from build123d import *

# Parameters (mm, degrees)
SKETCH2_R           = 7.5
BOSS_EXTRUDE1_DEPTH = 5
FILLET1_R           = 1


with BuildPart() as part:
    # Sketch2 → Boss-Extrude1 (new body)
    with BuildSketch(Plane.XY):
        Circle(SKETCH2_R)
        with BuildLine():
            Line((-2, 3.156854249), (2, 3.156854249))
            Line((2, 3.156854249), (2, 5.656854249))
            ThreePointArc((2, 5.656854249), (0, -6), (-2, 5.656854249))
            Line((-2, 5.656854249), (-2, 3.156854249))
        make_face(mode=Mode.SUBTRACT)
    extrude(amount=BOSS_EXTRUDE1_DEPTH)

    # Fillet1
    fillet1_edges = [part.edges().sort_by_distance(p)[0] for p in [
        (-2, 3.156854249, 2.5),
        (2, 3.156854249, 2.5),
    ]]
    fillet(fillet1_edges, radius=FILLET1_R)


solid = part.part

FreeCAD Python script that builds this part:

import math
import FreeCAD as App
import Part
import Sketcher


def edges_at(feature, points):
    """Names of the edges that pass closest to the given points."""
    edges = feature.Shape.Edges
    near = lambda p: min(range(len(edges)), key=lambda i: edges[i].distToShape(Part.Vertex(*p))[0])
    return sorted({f"Edge{near(p) + 1}" for p in points})

doc = App.newDocument("Part")
params = doc.addObject("Spreadsheet::Sheet", "Params")
for row, (alias, value) in enumerate([
    ("sketch1_diameter", "15 mm"),
    ("sketch1_radius", "6 mm"),
    ("sketch1_width", "4 mm"),
    ("sketch1_height", "2.5 mm"),
    ("pad1_length", "5 mm"),
    ("fillet_radius", "1 mm"),
], start=1):
    params.set(f"A{row}", alias)
    params.set(f"B{row}", "=" + value)
    params.setAlias(f"B{row}", alias)

body = doc.addObject("PartDesign::Body", "Body")

# Sketch on XY plane
sketch1 = body.newObject("Sketcher::SketchObject", "Sketch")
sketch1.AttachmentSupport = (doc.getObject("XY_Plane"), [""])
sketch1.MapMode = "FlatFace"
sketch1.addGeometry([
    Part.Circle(App.Vector(0, 0, 0), App.Vector(0, 0, 1), 7.5),  # 0
    Part.LineSegment(App.Vector(-2, 5.7, 0), App.Vector(-2, 3.2, 0)),  # 1
    Part.LineSegment(App.Vector(-2, 3.2, 0), App.Vector(2, 3.2, 0)),  # 2
    Part.LineSegment(App.Vector(2, 3.2, 0), App.Vector(2, 5.7, 0)),  # 3
    Part.ArcOfCircle(Part.Circle(App.Vector(0, 0, 0), App.Vector(0, 0, 1), 6), math.radians(109), math.radians(431)),  # 4
], False)
sketch1.addConstraint([
    Sketcher.Constraint("Coincident", 1, 2, 2, 1),
    Sketcher.Constraint("Coincident", 2, 2, 3, 1),
    Sketcher.Constraint("Coincident", 3, 2, 4, 2),
    Sketcher.Constraint("Coincident", 4, 1, 1, 1),
    Sketcher.Constraint("Vertical", 1),
    Sketcher.Constraint("Horizontal", 2),
    Sketcher.Constraint("Vertical", 3),
    Sketcher.Constraint("Coincident", 0, 3, -1, 1),
    Sketcher.Constraint("Coincident", 4, 3, -1, 1),
    Sketcher.Constraint("Horizontal", 3, 2, 4, 1),
    Sketcher.Constraint("Diameter", 0, 15.0),
    Sketcher.Constraint("Radius", 4, 6.0),
    Sketcher.Constraint("DistanceX", 2, 1, 2, 2, 4.0),
    Sketcher.Constraint("DistanceY", 1, 2, 1, 1, 2.5),
])
sketch1.setExpression("Constraints[10]", "Params.sketch1_diameter")
sketch1.setExpression("Constraints[11]", "Params.sketch1_radius")
sketch1.setExpression("Constraints[12]", "Params.sketch1_width")
sketch1.setExpression("Constraints[13]", "Params.sketch1_height")
pad1 = body.newObject("PartDesign::Pad", "Pad")
pad1.Profile = sketch1
pad1.setExpression("Length", "Params.pad1_length")
doc.recompute()

fillet = body.newObject("PartDesign::Fillet", "Fillet")
fillet.Base = (pad1, edges_at(pad1, [(-2, 3.157, 2.5), (2, 3.157, 2.5)]))
fillet.setExpression("Radius", "Params.fillet_radius")

doc.recompute()
